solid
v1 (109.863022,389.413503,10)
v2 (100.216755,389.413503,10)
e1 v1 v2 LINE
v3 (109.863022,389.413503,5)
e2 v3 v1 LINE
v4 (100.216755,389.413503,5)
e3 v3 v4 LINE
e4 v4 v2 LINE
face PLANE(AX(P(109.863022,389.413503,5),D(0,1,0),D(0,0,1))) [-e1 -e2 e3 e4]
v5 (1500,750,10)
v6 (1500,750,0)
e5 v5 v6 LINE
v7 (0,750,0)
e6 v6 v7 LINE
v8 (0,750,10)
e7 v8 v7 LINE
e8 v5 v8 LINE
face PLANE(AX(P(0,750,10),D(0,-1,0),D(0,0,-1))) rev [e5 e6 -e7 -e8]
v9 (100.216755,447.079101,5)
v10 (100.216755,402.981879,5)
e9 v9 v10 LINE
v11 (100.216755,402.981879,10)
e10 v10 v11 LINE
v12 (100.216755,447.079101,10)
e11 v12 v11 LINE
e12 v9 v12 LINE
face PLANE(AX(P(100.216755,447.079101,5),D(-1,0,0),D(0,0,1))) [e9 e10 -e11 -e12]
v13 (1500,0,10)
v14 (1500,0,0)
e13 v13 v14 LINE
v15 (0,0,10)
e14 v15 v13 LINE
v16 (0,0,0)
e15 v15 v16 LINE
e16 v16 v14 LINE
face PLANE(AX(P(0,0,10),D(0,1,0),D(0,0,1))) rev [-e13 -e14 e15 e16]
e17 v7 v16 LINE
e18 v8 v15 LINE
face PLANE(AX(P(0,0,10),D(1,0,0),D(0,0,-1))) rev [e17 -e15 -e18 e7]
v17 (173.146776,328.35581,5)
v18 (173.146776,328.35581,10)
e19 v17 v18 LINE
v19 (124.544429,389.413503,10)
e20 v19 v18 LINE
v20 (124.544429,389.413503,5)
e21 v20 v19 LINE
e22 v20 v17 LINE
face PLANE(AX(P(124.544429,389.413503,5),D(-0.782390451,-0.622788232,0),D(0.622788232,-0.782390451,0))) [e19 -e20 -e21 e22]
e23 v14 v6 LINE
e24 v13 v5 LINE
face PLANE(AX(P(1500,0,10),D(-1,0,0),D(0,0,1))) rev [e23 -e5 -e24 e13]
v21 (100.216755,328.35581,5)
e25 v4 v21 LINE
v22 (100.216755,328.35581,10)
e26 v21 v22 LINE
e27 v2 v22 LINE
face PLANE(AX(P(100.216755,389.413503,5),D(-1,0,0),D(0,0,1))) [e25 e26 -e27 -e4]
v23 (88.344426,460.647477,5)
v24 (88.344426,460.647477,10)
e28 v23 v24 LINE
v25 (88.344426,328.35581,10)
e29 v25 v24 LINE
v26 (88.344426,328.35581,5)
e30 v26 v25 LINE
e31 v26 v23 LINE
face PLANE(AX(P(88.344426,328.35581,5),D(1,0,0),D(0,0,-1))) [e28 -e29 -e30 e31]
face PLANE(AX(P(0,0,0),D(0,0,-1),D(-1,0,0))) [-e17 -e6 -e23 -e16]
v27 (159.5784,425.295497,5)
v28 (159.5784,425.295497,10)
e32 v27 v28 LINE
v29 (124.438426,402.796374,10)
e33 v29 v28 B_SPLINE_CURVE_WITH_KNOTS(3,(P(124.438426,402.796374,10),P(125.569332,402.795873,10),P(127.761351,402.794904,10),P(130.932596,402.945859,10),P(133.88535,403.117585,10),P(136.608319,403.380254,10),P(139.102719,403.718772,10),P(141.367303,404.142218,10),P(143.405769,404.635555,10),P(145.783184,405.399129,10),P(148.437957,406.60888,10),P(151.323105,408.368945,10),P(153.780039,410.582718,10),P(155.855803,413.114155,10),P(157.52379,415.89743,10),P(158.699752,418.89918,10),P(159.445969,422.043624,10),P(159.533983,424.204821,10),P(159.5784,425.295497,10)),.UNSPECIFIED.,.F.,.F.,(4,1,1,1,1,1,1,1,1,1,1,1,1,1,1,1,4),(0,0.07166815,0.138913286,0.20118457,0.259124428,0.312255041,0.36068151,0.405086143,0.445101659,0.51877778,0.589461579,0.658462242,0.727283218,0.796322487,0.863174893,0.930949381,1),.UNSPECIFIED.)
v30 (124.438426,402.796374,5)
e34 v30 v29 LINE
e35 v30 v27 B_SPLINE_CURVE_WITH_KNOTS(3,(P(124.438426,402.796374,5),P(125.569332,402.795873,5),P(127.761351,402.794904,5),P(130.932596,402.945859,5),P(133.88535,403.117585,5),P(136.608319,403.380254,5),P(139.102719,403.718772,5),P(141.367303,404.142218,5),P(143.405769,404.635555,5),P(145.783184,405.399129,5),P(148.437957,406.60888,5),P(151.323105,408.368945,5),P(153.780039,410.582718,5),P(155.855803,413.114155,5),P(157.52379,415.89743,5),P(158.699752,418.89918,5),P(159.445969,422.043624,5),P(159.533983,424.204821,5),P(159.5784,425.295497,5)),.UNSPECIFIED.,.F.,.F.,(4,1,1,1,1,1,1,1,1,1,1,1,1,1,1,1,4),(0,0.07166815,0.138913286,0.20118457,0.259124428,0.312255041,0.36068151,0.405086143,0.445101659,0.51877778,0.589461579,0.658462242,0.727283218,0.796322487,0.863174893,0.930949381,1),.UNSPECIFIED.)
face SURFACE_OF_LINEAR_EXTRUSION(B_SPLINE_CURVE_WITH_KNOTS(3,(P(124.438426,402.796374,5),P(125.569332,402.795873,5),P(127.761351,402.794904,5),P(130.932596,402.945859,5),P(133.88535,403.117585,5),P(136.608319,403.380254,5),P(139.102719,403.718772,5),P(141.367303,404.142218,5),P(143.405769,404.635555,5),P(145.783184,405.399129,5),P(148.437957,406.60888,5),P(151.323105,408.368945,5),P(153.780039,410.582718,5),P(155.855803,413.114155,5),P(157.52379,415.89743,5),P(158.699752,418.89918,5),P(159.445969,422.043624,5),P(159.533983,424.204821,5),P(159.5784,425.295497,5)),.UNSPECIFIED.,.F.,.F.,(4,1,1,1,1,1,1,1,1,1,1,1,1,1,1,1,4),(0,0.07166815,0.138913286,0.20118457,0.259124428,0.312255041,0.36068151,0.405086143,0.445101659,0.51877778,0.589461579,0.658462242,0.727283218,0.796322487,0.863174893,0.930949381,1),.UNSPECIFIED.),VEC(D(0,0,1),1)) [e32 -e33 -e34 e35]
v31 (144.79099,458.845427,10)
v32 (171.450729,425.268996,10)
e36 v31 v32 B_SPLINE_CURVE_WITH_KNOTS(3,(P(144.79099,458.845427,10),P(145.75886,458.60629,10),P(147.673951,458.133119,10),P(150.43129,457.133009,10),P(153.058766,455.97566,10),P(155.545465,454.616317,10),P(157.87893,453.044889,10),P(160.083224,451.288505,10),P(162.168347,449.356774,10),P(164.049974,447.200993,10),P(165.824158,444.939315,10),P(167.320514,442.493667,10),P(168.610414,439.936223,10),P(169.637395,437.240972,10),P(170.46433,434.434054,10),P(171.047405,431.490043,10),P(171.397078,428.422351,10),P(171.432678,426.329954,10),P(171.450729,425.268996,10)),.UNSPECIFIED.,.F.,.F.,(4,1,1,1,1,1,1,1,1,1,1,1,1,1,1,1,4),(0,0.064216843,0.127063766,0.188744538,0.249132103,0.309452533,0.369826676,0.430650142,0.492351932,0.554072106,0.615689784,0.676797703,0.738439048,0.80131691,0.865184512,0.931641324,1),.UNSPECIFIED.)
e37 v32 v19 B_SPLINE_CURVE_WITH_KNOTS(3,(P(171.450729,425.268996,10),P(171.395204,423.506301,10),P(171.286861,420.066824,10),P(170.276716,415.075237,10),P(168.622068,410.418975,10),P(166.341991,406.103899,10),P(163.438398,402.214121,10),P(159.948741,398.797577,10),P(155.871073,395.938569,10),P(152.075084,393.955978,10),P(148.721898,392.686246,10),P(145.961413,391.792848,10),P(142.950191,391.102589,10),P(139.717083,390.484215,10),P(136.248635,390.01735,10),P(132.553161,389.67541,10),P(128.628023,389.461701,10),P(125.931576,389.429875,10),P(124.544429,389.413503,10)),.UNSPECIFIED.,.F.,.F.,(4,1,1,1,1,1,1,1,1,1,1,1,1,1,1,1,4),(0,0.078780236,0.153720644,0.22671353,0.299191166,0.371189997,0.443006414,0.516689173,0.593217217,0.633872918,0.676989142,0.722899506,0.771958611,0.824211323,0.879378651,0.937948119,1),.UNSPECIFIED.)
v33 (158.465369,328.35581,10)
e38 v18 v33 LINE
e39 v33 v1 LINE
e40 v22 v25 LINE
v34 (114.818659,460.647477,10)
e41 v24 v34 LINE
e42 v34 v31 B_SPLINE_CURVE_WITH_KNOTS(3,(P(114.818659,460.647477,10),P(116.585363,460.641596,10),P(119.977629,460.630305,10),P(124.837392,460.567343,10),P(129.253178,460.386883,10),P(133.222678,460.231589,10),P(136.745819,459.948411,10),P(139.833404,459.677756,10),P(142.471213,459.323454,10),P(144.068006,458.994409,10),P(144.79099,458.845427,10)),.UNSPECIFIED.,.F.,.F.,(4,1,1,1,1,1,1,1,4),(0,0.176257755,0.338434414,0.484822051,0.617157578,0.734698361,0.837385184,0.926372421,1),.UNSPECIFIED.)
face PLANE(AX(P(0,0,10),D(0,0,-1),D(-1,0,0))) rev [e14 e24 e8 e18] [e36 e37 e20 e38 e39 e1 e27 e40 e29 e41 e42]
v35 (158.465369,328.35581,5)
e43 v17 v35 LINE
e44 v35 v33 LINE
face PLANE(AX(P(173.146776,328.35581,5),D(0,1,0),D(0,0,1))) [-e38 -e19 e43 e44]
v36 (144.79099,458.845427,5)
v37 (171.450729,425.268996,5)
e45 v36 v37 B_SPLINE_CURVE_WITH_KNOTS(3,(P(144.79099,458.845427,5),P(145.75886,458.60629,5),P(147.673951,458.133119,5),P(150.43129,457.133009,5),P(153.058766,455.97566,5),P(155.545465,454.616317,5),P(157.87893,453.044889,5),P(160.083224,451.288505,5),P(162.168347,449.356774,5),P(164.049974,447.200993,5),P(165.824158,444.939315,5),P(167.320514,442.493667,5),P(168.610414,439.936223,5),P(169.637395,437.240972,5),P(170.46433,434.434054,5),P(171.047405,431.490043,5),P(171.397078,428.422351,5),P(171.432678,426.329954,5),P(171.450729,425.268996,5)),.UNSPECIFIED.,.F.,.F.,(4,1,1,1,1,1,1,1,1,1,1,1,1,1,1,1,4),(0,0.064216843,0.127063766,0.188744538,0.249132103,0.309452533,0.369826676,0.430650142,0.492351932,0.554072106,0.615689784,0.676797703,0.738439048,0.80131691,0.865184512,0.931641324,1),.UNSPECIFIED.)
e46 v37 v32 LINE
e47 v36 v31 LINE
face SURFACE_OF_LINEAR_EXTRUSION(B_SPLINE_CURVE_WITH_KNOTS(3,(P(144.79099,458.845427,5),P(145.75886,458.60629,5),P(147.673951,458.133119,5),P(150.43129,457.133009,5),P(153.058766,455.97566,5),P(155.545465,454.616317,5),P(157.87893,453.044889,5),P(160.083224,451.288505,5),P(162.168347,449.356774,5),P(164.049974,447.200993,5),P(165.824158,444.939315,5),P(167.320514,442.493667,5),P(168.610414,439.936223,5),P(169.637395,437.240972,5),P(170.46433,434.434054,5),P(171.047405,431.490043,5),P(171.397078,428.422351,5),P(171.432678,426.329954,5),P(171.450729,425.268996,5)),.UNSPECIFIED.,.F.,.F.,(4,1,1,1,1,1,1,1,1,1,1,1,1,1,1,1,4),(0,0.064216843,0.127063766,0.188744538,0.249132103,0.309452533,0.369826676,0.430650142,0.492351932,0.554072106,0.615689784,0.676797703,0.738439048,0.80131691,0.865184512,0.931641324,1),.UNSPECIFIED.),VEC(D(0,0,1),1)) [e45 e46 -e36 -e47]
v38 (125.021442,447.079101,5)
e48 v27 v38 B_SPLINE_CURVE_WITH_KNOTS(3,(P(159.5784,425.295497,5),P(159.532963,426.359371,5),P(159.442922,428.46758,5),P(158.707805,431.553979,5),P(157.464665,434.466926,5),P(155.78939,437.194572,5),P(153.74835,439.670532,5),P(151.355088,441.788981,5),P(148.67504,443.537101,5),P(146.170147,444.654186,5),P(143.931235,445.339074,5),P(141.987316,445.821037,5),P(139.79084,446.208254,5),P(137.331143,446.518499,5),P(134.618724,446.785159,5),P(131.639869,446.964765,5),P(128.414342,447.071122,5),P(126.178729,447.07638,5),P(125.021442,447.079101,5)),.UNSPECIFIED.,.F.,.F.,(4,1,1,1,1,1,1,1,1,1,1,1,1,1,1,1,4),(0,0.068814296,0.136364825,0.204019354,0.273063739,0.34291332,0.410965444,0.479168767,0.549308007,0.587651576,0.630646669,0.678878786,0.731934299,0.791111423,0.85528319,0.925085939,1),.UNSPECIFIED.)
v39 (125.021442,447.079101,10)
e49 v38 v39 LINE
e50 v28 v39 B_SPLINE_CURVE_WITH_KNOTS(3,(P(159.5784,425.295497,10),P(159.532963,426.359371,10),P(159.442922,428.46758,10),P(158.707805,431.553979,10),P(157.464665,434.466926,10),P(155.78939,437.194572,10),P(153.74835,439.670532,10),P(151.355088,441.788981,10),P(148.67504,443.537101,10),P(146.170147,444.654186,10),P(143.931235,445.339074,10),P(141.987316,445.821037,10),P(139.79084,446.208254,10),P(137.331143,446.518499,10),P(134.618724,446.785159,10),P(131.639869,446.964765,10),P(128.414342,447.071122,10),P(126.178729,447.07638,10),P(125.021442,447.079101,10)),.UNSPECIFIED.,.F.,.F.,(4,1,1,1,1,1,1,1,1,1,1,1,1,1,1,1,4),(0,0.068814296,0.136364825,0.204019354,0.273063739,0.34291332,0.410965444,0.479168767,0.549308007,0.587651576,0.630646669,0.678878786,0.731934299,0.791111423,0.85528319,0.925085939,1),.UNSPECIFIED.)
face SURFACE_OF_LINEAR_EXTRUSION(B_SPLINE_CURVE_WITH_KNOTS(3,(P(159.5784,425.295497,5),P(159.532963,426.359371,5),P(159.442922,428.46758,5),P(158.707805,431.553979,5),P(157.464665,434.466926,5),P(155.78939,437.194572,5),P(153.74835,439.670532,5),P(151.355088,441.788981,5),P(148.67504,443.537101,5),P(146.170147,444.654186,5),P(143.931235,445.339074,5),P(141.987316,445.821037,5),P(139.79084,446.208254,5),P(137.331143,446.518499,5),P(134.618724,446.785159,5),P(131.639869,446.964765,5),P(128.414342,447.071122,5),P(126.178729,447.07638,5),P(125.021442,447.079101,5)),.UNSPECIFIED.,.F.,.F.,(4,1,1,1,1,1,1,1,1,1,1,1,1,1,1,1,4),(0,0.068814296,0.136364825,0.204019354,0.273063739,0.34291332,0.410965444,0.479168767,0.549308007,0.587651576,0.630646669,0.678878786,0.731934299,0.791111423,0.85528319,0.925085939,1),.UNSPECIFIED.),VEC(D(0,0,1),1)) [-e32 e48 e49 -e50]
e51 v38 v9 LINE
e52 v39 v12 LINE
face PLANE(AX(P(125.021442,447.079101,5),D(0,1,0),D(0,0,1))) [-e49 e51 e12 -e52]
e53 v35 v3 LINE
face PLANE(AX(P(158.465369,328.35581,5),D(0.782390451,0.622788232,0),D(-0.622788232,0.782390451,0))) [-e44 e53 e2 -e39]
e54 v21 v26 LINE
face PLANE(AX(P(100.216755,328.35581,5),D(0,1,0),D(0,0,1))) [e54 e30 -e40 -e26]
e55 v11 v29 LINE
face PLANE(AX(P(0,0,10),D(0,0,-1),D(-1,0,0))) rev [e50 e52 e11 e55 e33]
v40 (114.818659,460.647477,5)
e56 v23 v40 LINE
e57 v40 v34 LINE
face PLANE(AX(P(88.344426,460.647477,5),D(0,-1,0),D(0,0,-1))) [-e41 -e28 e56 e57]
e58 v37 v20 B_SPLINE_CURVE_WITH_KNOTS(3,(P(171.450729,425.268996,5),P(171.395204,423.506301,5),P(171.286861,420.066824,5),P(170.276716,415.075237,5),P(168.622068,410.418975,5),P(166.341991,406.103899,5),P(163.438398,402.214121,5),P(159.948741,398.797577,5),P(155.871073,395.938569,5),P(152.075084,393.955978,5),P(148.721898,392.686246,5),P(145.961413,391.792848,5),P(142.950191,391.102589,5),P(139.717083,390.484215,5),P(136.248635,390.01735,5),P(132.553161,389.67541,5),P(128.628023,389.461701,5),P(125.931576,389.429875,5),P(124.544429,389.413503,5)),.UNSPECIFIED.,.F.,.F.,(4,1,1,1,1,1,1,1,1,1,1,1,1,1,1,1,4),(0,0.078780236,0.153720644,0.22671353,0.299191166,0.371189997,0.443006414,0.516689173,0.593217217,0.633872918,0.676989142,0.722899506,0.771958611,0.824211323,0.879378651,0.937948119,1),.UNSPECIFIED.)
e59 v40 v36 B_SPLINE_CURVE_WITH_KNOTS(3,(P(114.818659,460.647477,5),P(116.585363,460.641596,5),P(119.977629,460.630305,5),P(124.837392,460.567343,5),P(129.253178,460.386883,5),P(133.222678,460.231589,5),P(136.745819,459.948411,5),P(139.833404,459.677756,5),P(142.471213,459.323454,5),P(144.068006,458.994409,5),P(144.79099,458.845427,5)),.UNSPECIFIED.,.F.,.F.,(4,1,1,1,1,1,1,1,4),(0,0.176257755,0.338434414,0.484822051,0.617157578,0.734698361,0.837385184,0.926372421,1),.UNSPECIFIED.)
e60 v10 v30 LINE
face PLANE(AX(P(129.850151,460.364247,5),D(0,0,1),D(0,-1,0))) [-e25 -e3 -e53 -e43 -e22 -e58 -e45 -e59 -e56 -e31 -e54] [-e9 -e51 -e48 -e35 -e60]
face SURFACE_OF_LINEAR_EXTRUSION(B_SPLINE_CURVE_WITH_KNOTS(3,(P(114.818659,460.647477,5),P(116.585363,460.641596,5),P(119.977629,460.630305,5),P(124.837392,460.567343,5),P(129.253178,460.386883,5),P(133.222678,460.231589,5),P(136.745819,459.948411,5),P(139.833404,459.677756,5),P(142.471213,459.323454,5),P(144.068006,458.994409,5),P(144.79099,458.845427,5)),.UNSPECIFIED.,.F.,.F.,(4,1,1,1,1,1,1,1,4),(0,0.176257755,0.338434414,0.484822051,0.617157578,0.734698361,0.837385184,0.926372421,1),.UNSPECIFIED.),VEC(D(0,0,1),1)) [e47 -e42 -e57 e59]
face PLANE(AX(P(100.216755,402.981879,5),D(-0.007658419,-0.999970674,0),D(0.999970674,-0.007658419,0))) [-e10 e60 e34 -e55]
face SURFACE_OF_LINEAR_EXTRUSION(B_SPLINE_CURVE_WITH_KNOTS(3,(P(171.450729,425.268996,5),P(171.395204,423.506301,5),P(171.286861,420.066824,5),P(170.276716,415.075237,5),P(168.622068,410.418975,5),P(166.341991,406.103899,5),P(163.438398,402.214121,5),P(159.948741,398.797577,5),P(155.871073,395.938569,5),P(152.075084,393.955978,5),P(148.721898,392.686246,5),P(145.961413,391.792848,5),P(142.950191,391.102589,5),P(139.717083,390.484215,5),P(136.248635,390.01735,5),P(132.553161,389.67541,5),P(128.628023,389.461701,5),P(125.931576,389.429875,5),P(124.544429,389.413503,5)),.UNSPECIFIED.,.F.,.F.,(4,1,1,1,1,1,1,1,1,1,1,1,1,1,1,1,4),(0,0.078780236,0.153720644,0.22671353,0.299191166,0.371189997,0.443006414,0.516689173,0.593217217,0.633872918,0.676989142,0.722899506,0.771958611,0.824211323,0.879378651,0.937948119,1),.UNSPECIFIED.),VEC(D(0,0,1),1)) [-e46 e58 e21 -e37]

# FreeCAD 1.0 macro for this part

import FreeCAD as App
import Part
import Sketcher
from FreeCAD import Vector


def add_polygon(sketch, points):
    """Adds a closed chain of lines whose ends are joined by coincident constraints."""
    first, n = sketch.GeometryCount, len(points)
    for a, b in zip(points, points[1:] + points[:1]):
        sketch.addGeometry(Part.LineSegment(App.Vector(*a, 0), App.Vector(*b, 0)), False)
    for i in range(n):
        sketch.addConstraint(Sketcher.Constraint("Coincident", first + i, 2, first + (i + 1) % n, 1))

doc = App.newDocument("Part")
body = doc.addObject("PartDesign::Body", "Body")

# Sketch on XY plane
sketch1 = body.newObject("Sketcher::SketchObject", "Sketch")
sketch1.AttachmentSupport = (doc.getObject("XY_Plane"), [""])
sketch1.MapMode = "FlatFace"
add_polygon(sketch1, [(0, 750), (0, 0), (1500, 0), (1500, 750)])  # lines 0-3
sketch1.addConstraint([
    Sketcher.Constraint("Vertical", 0),
    Sketcher.Constraint("Horizontal", 1),
    Sketcher.Constraint("Vertical", 2),
    Sketcher.Constraint("Horizontal", 3),
    Sketcher.Constraint("Coincident", 0, 2, -1, 1),
    Sketcher.Constraint("DistanceX", 1, 1, 1, 2, 1500.0),
    Sketcher.Constraint("DistanceY", 0, 2, 0, 1, 750.0),
])
pad1 = body.newObject("PartDesign::Pad", "Pad")
pad1.Profile = sketch1
pad1.Length = 10

# Sketch on XY plane
sketch2 = body.newObject("Sketcher::SketchObject", "Sketch001")
sketch2.AttachmentSupport = (doc.getObject("XY_Plane"), [""])
sketch2.MapMode = "FlatFace"
sketch2.AttachmentOffset = App.Placement(Vector(0, 0, 10), App.Rotation())
sketch2.addGeometry([
    Part.LineSegment(Vector(114.818659, 460.647477, 0), Vector(88.344426, 460.647477, 0)),  # 0
    Part.LineSegment(Vector(88.344426, 460.647477, 0), Vector(88.344426, 328.35581, 0)),  # 1
    Part.LineSegment(Vector(88.344426, 328.35581, 0), Vector(100.216755, 328.35581, 0)),  # 2
    Part.LineSegment(Vector(100.216755, 328.35581, 0), Vector(100.216755, 389.413503, 0)),  # 3
    Part.LineSegment(Vector(100.216755, 389.413503, 0), Vector(109.863022, 389.413503, 0)),  # 4
    Part.LineSegment(Vector(109.863022, 389.413503, 0), Vector(158.465369, 328.35581, 0)),  # 5
    Part.LineSegment(Vector(158.465369, 328.35581, 0), Vector(173.146776, 328.35581, 0)),  # 6
    Part.LineSegment(Vector(173.146776, 328.35581, 0), Vector(124.544429, 389.413503, 0)),  # 7
    Part.BSplineCurve([Vector(171.450729, 425.268996, 0), Vector(171.395204, 423.506301, 0), Vector(171.286861, 420.066824, 0), Vector(170.276716, 415.075237, 0), Vector(168.622068, 410.418975, 0), Vector(166.341991, 406.103899, 0), Vector(163.438398, 402.214121, 0), Vector(159.948741, 398.797577, 0), Vector(155.871073, 395.938569, 0), Vector(152.075084, 393.955978, 0), Vector(148.721898, 392.686246, 0), Vector(145.961413, 391.792848, 0), Vector(142.950191, 391.102589, 0), Vector(139.717083, 390.484215, 0), Vector(136.248635, 390.01735, 0), Vector(132.553161, 389.67541, 0), Vector(128.628023, 389.461701, 0), Vector(125.931576, 389.429875, 0), Vector(124.544429, 389.413503, 0)], [4, 1, 1, 1, 1, 1, 1, 1, 1, 1, 1, 1, 1, 1, 1, 1, 4], [0, 1.260483769, 2.459530307, 3.627416485, 4.787058657, 5.939039949, 7.08810263, 8.267026773, 9.491475466, 10.141966685, 10.831826277, 11.566392101, 12.351337768, 13.187381173, 14.07005841, 15.007169909, 16], False, 3, [1, 1, 1, 1, 1, 1, 1, 1, 1, 1, 1, 1, 1, 1, 1, 1, 1, 1, 1], False),  # 8
    Part.BSplineCurve([Vector(144.79099, 458.845427, 0), Vector(145.75886, 458.60629, 0), Vector(147.673951, 458.133119, 0), Vector(150.43129, 457.133009, 0), Vector(153.058766, 455.97566, 0), Vector(155.545465, 454.616317, 0), Vector(157.87893, 453.044889, 0), Vector(160.083224, 451.288505, 0), Vector(162.168347, 449.356774, 0), Vector(164.049974, 447.200993, 0), Vector(165.824158, 444.939315, 0), Vector(167.320514, 442.493667, 0), Vector(168.610414, 439.936223, 0), Vector(169.637395, 437.240972, 0), Vector(170.46433, 434.434054, 0), Vector(171.047405, 431.490043, 0), Vector(171.397078, 428.422351, 0), Vector(171.432678, 426.329954, 0), Vector(171.450729, 425.268996, 0)], [4, 1, 1, 1, 1, 1, 1, 1, 1, 1, 1, 1, 1, 1, 1, 1, 4], [0, 1.027469482, 2.033020251, 3.019912614, 3.986113645, 4.951240523, 5.91722682, 6.890402269, 7.87763091, 8.8651537, 9.85103654, 10.82876324, 11.815024772, 12.821070561, 13.842952187, 14.906261191, 16], False, 3, [1, 1, 1, 1, 1, 1, 1, 1, 1, 1, 1, 1, 1, 1, 1, 1, 1, 1, 1], False),  # 9
    Part.BSplineCurve([Vector(114.818659, 460.647477, 0), Vector(116.585363, 460.641596, 0), Vector(119.977629, 460.630305, 0), Vector(124.837392, 460.567343, 0), Vector(129.253178, 460.386883, 0), Vector(133.222678, 460.231589, 0), Vector(136.745819, 459.948411, 0), Vector(139.833404, 459.677756, 0), Vector(142.471213, 459.323454, 0), Vector(144.068006, 458.994409, 0), Vector(144.79099, 458.845427, 0)], [4, 1, 1, 1, 1, 1, 1, 1, 4], [0, 1.410062039, 2.707475311, 3.878576406, 4.937260626, 5.877586885, 6.699081471, 7.410979367, 8], False, 3, [1, 1, 1, 1, 1, 1, 1, 1, 1, 1, 1], False),  # 10
    Part.LineSegment(Vector(100.216755, 447.079101, 0), Vector(125.021442, 447.079101, 0)),  # 11
    Part.BSplineCurve([Vector(159.5784, 425.295497, 0), Vector(159.532963, 426.359371, 0), Vector(159.442922, 428.46758, 0), Vector(158.707805, 431.553979, 0), Vector(157.464665, 434.466926, 0), Vector(155.78939, 437.194572, 0), Vector(153.74835, 439.670532, 0), Vector(151.355088, 441.788981, 0), Vector(148.67504, 443.537101, 0), Vector(146.170147, 444.654186, 0), Vector(143.931235, 445.339074, 0), Vector(141.987316, 445.821037, 0), Vector(139.79084, 446.208254, 0), Vector(137.331143, 446.518499, 0), Vector(134.618724, 446.785159, 0), Vector(131.639869, 446.964765, 0), Vector(128.414342, 447.071122, 0), Vector(126.178729, 447.07638, 0), Vector(125.021442, 447.079101, 0)], [4, 1, 1, 1, 1, 1, 1, 1, 1, 1, 1, 1, 1, 1, 1, 1, 4], [0, 1.101028733, 2.181837193, 3.264309656, 4.369019818, 5.486613113, 6.575447106, 7.666700264, 8.788928104, 9.402425223, 10.0903467, 10.862060571, 11.710948788, 12.657782767, 13.684531032, 14.801375019, 16], False, 3, [1, 1, 1, 1, 1, 1, 1, 1, 1, 1, 1, 1, 1, 1, 1, 1, 1, 1, 1], False),  # 12
    Part.BSplineCurve([Vector(124.438426, 402.796374, 0), Vector(125.569332, 402.795873, 0), Vector(127.761351, 402.794904, 0), Vector(130.932596, 402.945859, 0), Vector(133.88535, 403.117585, 0), Vector(136.608319, 403.380254, 0), Vector(139.102719, 403.718772, 0), Vector(141.367303, 404.142218, 0), Vector(143.405769, 404.635555, 0), Vector(145.783184, 405.399129, 0), Vector(148.437957, 406.60888, 0), Vector(151.323105, 408.368945, 0), Vector(153.780039, 410.582718, 0), Vector(155.855803, 413.114155, 0), Vector(157.52379, 415.89743, 0), Vector(158.699752, 418.89918, 0), Vector(159.445969, 422.043624, 0), Vector(159.533983, 424.204821, 0), Vector(159.5784, 425.295497, 0)], [4, 1, 1, 1, 1, 1, 1, 1, 1, 1, 1, 1, 1, 1, 1, 1, 4], [0, 1.146690395, 2.22261258, 3.21895312, 4.145990853, 4.996080663, 5.770904154, 6.481378293, 7.121626537, 8.300444488, 9.431385265, 10.535395872, 11.636531494, 12.74115979, 13.810798291, 14.895190096, 16], False, 3, [1, 1, 1, 1, 1, 1, 1, 1, 1, 1, 1, 1, 1, 1, 1, 1, 1, 1, 1], False),  # 13
    Part.LineSegment(Vector(124.438426, 402.796374, 0), Vector(100.216755, 402.981879, 0)),  # 14
    Part.LineSegment(Vector(100.216755, 402.981879, 0), Vector(100.216755, 447.079101, 0)),  # 15
], False)
sketch2.addConstraint([
    Sketcher.Constraint("Block", 8),
    Sketcher.Constraint("Block", 9),
    Sketcher.Constraint("Block", 10),
    Sketcher.Constraint("Block", 12),
    Sketcher.Constraint("Block", 13),
    Sketcher.Constraint("Coincident", 0, 2, 1, 1),
    Sketcher.Constraint("Coincident", 1, 2, 2, 1),
    Sketcher.Constraint("Coincident", 2, 2, 3, 1),
    Sketcher.Constraint("Coincident", 3, 2, 4, 1),
    Sketcher.Constraint("Coincident", 4, 2, 5, 1),
    Sketcher.Constraint("Coincident", 5, 2, 6, 1),
    Sketcher.Constraint("Coincident", 6, 2, 7, 1),
    Sketcher.Constraint("Coincident", 7, 2, 8, 2),
    Sketcher.Constraint("Coincident", 10, 1, 0, 1),
    Sketcher.Constraint("Coincident", 11, 2, 12, 2),
    Sketcher.Constraint("Coincident", 13, 1, 14, 1),
    Sketcher.Constraint("Coincident", 14, 2, 15, 1),
    Sketcher.Constraint("Coincident", 15, 2, 11, 1),
    Sketcher.Constraint("Horizontal", 0),
    Sketcher.Constraint("Vertical", 1),
    Sketcher.Constraint("Horizontal", 2),
    Sketcher.Constraint("Vertical", 3),
    Sketcher.Constraint("Horizontal", 4),
    Sketcher.Constraint("Horizontal", 6),
    Sketcher.Constraint("Horizontal", 11),
    Sketcher.Constraint("Vertical", 15),
    Sketcher.Constraint("DistanceX", 2, 1, 2, 2, 11.872329),
    Sketcher.Constraint("DistanceY", 4, 2, 11, 2, 57.665598),
    Sketcher.Constraint("DistanceY", 14, 2, 0, 2, 57.665598),
    Sketcher.Constraint("Distance", 14, 24.222382),
    Sketcher.Constraint("DistanceX", 0, 2, 0, 1, 26.474234),
    Sketcher.Constraint("DistanceX", 4, 1, 4, 2, 9.646267),
    Sketcher.Constraint("DistanceX", 6, 1, 6, 2, 14.681407),
    Sketcher.Constraint("DistanceY", 1, 2, 1, 1, 132.291667),
    Sketcher.Constraint("DistanceX", -1, 1, 5, 2, 158.465369),
    Sketcher.Constraint("DistanceY", -1, 1, 5, 2, 328.35581),
])
pocket1 = body.newObject("PartDesign::Pocket", "Pocket")
pocket1.Profile = sketch2
pocket1.Length = 5

doc.recompute()
